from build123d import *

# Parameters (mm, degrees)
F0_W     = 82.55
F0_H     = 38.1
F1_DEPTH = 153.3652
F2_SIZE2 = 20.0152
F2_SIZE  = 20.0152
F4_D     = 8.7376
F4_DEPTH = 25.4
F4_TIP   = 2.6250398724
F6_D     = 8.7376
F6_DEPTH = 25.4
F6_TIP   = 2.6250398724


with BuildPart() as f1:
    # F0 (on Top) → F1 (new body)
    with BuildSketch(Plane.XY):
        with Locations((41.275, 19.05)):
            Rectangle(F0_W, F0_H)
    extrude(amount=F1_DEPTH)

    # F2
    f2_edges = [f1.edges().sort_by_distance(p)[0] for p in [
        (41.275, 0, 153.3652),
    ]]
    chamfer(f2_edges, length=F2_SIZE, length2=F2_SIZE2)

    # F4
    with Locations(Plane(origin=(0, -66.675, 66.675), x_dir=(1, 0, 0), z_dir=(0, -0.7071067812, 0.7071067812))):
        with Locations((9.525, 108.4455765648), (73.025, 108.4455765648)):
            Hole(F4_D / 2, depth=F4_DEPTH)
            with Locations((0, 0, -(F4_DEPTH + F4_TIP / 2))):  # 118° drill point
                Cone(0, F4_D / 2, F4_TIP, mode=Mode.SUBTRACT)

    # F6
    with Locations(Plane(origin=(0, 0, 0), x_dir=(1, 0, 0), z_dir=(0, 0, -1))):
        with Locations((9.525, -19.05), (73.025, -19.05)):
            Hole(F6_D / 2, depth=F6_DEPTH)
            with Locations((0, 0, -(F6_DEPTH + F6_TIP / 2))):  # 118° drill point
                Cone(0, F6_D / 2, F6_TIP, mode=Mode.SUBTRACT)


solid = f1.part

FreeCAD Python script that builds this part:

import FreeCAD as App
import Part
import Sketcher
from FreeCAD import Vector
Q = App.Units.Quantity


def edges_at(feature, points):
    """Names of the edges that pass closest to the given points."""
    edges = feature.Shape.Edges
    near = lambda p: min(range(len(edges)), key=lambda i: edges[i].distToShape(Part.Vertex(*p))[0])
    return sorted({f"Edge{near(p) + 1}" for p in points})

doc = App.newDocument("Part")
body = doc.addObject("PartDesign::Body", "Body")

sketch1 = doc.addObject("Sketcher::SketchObject", "Sketch")
body.addObject(sketch1)
sketch1.AttachmentSupport = (doc.XY_Plane, [""])
sketch1.MapMode = "FlatFace"
sketch1.addGeometry([
    Part.LineSegment(Vector(0, 38.1, 0), Vector(0, 0, 0)),
    Part.LineSegment(Vector(0, 0, 0), Vector(82.55, 0, 0)),
    Part.LineSegment(Vector(82.55, 0, 0), Vector(82.55, 38.1, 0)),
    Part.LineSegment(Vector(82.55, 38.1, 0), Vector(0, 38.1, 0)),
], False)
sketch1.addConstraint([
    Sketcher.Constraint("Coincident", 0, 2, 1, 1),
    Sketcher.Constraint("Coincident", 1, 2, 2, 1),
    Sketcher.Constraint("Coincident", 2, 2, 3, 1),
    Sketcher.Constraint("Coincident", 3, 2, 0, 1),
    Sketcher.Constraint("Vertical", 0),
    Sketcher.Constraint("Horizontal", 1),
    Sketcher.Constraint("Vertical", 2),
    Sketcher.Constraint("Horizontal", 3),
    Sketcher.Constraint("Coincident", 0, 2, -1, 1),
    Sketcher.Constraint("DistanceY", 0, 2, 0, 1, Q("1.5 in")),
    Sketcher.Constraint("DistanceX", 1, 1, 1, 2, Q("3.25 in")),
])
pad1 = doc.addObject("PartDesign::Pad", "Pad")
body.addObject(pad1)
pad1.Profile = sketch1
pad1.Length = Q("6.038 in")
doc.recompute()

chamfer = doc.addObject("PartDesign::Chamfer", "Chamfer")
body.addObject(chamfer)
chamfer.Base = (pad1, edges_at(pad1, [(41.275, 0, 153.365)]))
chamfer.ChamferType = "Two distances"
chamfer.Size = Q("0.788 in")
chamfer.Size2 = Q("0.788 in")

sketch2 = doc.addObject("Sketcher::SketchObject", "Sketch001")
body.addObject(sketch2)
sketch2.Placement = App.Placement(Vector(0, -66.675, 66.675), App.Rotation(Vector(1, 0, 0), Vector(0, 0.707106781, 0.707106781), Vector(0, -0.707106781, 0.707106781), "ZXY"))
sketch2.addGeometry([
    Part.Circle(Vector(9.525, 108.445577, 0), Vector(0, 0, 1), 4.3688),
    Part.Circle(Vector(73.025, 108.445577, 0), Vector(0, 0, 1), 4.3688),
], False)
sketch2.addConstraint([
    Sketcher.Constraint("Equal", 0, 1),
    Sketcher.Constraint("Horizontal", 0, 3, 1, 3),
    Sketcher.Constraint("Diameter", 0, Q("0.344 in")),
    Sketcher.Constraint("DistanceX", 0, 3, 1, 3, Q("2.5 in")),
    Sketcher.Constraint("DistanceX", -1, 1, 0, 3, Q("0.375 in")),
    Sketcher.Constraint("DistanceY", -1, 1, 0, 3, Q("108.445577 mm")),
])
doc.recompute()
hole = doc.addObject("PartDesign::Hole", "Hole")
body.addObject(hole)
hole.Profile = sketch2
hole.ThreadType = "None"
hole.Diameter = Q("0.344 in")
hole.DepthType = "Dimension"
hole.Depth = Q("1 in")
hole.DrillPoint = "Angled"
hole.DrillPointAngle = 118

sketch3 = doc.addObject("Sketcher::SketchObject", "Sketch002")
body.addObject(sketch3)
sketch3.AttachmentSupport = (doc.XY_Plane, [""])
sketch3.MapMode = "FlatFace"
sketch3.addGeometry([
    Part.Circle(Vector(9.525, 19.05, 0), Vector(0, 0, 1), 4.3688),
    Part.Circle(Vector(73.025, 19.05, 0), Vector(0, 0, 1), 4.3688),
], False)
sketch3.addConstraint([
    Sketcher.Constraint("Equal", 0, 1),
    Sketcher.Constraint("Horizontal", 0, 3, 1, 3),
    Sketcher.Constraint("Diameter", 0, Q("0.344 in")),
    Sketcher.Constraint("DistanceX", 0, 3, 1, 3, Q("2.5 in")),
    Sketcher.Constraint("DistanceY", -1, 1, 0, 3, Q("0.75 in")),
    Sketcher.Constraint("DistanceX", -1, 1, 0, 3, Q("0.375 in")),
])
doc.recompute()
hole2 = doc.addObject("PartDesign::Hole", "Hole001")
body.addObject(hole2)
hole2.Profile = sketch3
hole2.ThreadType = "None"
hole2.Diameter = Q("0.344 in")
hole2.DepthType = "Dimension"
hole2.Depth = Q("1 in")
hole2.DrillPoint = "Angled"
hole2.DrillPointAngle = 118
hole2.Reversed = True

doc.recompute()
